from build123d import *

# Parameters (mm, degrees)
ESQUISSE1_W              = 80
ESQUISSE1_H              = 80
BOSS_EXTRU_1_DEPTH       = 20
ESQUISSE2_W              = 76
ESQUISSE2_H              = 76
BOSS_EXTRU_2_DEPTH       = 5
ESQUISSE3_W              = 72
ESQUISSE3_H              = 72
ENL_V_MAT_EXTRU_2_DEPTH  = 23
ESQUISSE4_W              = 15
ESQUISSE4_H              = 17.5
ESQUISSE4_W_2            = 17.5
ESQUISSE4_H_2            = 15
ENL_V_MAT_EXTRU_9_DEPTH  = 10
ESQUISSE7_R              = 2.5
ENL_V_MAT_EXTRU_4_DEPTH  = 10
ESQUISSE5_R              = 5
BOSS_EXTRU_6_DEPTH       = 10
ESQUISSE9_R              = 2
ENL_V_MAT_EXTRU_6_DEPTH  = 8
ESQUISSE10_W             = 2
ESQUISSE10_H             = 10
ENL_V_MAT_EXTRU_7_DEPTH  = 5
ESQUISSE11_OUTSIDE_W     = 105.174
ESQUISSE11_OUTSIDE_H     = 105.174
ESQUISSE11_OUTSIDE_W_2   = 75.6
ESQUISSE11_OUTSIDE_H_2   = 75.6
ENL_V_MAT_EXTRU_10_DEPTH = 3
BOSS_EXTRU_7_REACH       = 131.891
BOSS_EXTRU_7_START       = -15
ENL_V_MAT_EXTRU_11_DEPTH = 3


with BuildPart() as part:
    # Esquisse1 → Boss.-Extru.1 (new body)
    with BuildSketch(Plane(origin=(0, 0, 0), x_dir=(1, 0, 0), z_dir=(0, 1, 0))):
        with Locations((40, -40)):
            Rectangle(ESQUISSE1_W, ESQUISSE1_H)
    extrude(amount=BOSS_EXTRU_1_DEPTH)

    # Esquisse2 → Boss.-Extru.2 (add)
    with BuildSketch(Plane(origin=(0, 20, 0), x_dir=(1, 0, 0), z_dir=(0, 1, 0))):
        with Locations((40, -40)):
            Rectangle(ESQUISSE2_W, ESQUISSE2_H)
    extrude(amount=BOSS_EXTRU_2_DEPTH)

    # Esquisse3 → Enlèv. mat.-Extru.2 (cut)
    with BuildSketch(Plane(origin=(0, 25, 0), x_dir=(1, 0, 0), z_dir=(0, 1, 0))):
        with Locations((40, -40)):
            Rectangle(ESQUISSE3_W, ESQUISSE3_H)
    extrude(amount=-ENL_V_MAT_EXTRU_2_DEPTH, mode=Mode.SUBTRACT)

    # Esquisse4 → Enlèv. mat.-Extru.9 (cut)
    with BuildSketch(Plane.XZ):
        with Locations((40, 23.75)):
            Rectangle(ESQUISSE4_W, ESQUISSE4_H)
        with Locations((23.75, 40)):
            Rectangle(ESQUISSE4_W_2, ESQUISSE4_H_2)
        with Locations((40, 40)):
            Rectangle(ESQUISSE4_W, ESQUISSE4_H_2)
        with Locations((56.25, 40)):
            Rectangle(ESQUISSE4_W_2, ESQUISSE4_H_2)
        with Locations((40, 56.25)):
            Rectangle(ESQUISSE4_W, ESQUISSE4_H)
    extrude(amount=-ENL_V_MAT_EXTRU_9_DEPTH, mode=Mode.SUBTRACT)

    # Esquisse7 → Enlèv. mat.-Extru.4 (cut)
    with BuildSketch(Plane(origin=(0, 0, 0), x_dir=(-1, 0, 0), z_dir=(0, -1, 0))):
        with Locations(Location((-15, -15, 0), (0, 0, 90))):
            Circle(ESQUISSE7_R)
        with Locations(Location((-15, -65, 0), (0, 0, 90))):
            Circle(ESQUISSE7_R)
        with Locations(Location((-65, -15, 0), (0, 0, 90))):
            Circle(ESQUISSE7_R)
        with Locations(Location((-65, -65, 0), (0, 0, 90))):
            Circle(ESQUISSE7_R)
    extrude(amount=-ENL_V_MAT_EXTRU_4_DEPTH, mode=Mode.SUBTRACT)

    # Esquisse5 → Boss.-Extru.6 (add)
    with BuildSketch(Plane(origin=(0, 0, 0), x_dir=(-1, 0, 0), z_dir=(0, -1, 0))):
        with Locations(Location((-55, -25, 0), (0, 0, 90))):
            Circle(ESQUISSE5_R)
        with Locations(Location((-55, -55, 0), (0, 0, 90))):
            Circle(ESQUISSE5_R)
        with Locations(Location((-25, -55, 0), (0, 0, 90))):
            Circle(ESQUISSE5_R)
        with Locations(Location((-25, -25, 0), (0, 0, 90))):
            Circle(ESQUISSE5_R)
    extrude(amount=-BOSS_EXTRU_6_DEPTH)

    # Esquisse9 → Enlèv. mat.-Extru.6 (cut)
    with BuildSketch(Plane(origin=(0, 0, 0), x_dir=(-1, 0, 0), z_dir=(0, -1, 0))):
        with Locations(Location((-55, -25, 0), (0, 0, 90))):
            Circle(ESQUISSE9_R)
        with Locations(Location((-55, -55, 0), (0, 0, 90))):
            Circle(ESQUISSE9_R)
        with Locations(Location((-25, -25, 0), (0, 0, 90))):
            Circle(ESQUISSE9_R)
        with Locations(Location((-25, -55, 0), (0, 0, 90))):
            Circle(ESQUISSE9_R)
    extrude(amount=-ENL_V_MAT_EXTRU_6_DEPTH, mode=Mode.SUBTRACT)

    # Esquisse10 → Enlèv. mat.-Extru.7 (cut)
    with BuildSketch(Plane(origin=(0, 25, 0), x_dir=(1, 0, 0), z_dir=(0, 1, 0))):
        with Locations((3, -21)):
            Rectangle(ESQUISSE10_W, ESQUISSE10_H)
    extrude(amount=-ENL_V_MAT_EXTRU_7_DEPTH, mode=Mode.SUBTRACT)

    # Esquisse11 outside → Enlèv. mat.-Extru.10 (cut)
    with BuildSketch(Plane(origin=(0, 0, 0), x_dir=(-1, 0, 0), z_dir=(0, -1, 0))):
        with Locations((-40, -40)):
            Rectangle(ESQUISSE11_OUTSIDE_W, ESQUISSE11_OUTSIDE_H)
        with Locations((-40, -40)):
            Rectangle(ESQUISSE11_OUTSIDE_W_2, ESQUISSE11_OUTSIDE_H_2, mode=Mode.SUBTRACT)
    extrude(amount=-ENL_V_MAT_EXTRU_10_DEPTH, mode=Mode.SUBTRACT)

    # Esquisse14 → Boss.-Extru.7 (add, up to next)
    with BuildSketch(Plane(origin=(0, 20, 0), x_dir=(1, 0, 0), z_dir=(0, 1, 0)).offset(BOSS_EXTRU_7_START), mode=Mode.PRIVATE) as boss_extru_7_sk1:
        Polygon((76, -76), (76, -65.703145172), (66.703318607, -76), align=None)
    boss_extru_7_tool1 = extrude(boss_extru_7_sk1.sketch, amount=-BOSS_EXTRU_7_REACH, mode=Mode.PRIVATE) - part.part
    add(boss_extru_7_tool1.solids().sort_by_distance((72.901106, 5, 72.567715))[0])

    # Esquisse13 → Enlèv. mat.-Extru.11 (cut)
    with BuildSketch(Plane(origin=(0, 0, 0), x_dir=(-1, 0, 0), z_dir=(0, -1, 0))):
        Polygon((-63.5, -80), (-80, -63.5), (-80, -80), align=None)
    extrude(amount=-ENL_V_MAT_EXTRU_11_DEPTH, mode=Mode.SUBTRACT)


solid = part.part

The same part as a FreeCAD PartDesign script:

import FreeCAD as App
import Part
import Sketcher
from FreeCAD import Vector


def add_polygon(sketch, points):
    """Adds a closed chain of lines whose ends are joined by coincident constraints."""
    first, n = sketch.GeometryCount, len(points)
    for a, b in zip(points, points[1:] + points[:1]):
        sketch.addGeometry(Part.LineSegment(App.Vector(*a, 0), App.Vector(*b, 0)), False)
    for i in range(n):
        sketch.addConstraint(Sketcher.Constraint("Coincident", first + i, 2, first + (i + 1) % n, 1))

doc = App.newDocument("Part")
body = doc.addObject("PartDesign::Body", "Body")

# Sketch on XZ plane
sketch1 = body.newObject("Sketcher::SketchObject", "Sketch")
sketch1.AttachmentSupport = (doc.getObject("XZ_Plane"), [""])
sketch1.MapMode = "FlatFace"
add_polygon(sketch1, [(0, 0), (0, 80), (80, 80), (80, 0)])  # lines 0-3
sketch1.addConstraint(Sketcher.Constraint("Vertical", 0))
sketch1.addConstraint(Sketcher.Constraint("Horizontal", 1))
sketch1.addConstraint(Sketcher.Constraint("Vertical", 2))
sketch1.addConstraint(Sketcher.Constraint("Horizontal", 3))
sketch1.addConstraint(Sketcher.Constraint("Coincident", 3, 2, -1, 1))
sketch1.addConstraint(Sketcher.Constraint("Equal", 3, 0))
sketch1.addConstraint(Sketcher.Constraint("DistanceX", 1, 1, 1, 2, 80.0))
pad1 = body.newObject("PartDesign::Pad", "Pad")
pad1.Profile = sketch1
pad1.Length = 20
pad1.Reversed = True

# Sketch on XZ plane
sketch2 = body.newObject("Sketcher::SketchObject", "Sketch001")
sketch2.AttachmentSupport = (doc.getObject("XZ_Plane"), [""])
sketch2.MapMode = "FlatFace"
sketch2.AttachmentOffset = App.Placement(Vector(0, 0, -20), App.Rotation())
add_polygon(sketch2, [(2, 2), (2, 78), (78, 78), (78, 2)])  # lines 0-3
sketch2.addConstraint(Sketcher.Constraint("Vertical", 0))
sketch2.addConstraint(Sketcher.Constraint("Horizontal", 1))
sketch2.addConstraint(Sketcher.Constraint("Vertical", 2))
sketch2.addConstraint(Sketcher.Constraint("Horizontal", 3))
sketch2.addConstraint(Sketcher.Constraint("Equal", 3, 0))
sketch2.addConstraint(Sketcher.Constraint("DistanceX", 1, 1, 1, 2, 76.0))
sketch2.addConstraint(Sketcher.Constraint("DistanceX", -1, 1, 0, 2, 2.0))
sketch2.addConstraint(Sketcher.Constraint("DistanceY", -1, 1, 0, 2, 78.0))
pad2 = body.newObject("PartDesign::Pad", "Pad001")
pad2.Profile = sketch2
pad2.Length = 5
pad2.Reversed = True

# Sketch on XZ plane
sketch3 = body.newObject("Sketcher::SketchObject", "Sketch002")
sketch3.AttachmentSupport = (doc.getObject("XZ_Plane"), [""])
sketch3.MapMode = "FlatFace"
sketch3.AttachmentOffset = App.Placement(Vector(0, 0, -25), App.Rotation())
add_polygon(sketch3, [(4, 4), (4, 76), (76, 76), (76, 4)])  # lines 0-3
sketch3.addConstraint(Sketcher.Constraint("Vertical", 0))
sketch3.addConstraint(Sketcher.Constraint("Horizontal", 1))
sketch3.addConstraint(Sketcher.Constraint("Vertical", 2))
sketch3.addConstraint(Sketcher.Constraint("Horizontal", 3))
sketch3.addConstraint(Sketcher.Constraint("Equal", 3, 0))
sketch3.addConstraint(Sketcher.Constraint("DistanceX", 1, 1, 1, 2, 72.0))
sketch3.addConstraint(Sketcher.Constraint("DistanceX", -1, 1, 0, 2, 4.0))
sketch3.addConstraint(Sketcher.Constraint("DistanceY", -1, 1, 0, 2, 76.0))
pocket1 = body.newObject("PartDesign::Pocket", "Pocket")
pocket1.Profile = sketch3
pocket1.Length = 23
pocket1.Reversed = True

# Sketch on XZ plane
sketch4 = body.newObject("Sketcher::SketchObject", "Sketch003")
sketch4.AttachmentSupport = (doc.getObject("XZ_Plane"), [""])
sketch4.MapMode = "FlatFace"
add_polygon(sketch4, [(32.5, 32.5), (32.5, 15), (47.5, 15), (47.5, 32.5), (65, 32.5), (65, 47.5), (47.5, 47.5), (47.5, 65), (32.5, 65), (32.5, 47.5), (15, 47.5), (15, 32.5)])  # lines 0-11
sketch4.addConstraint(Sketcher.Constraint("Vertical", 0))
sketch4.addConstraint(Sketcher.Constraint("Horizontal", 1))
sketch4.addConstraint(Sketcher.Constraint("Vertical", 2))
sketch4.addConstraint(Sketcher.Constraint("Horizontal", 3))
sketch4.addConstraint(Sketcher.Constraint("Vertical", 4))
sketch4.addConstraint(Sketcher.Constraint("Horizontal", 5))
sketch4.addConstraint(Sketcher.Constraint("Vertical", 6))
sketch4.addConstraint(Sketcher.Constraint("Horizontal", 7))
sketch4.addConstraint(Sketcher.Constraint("Vertical", 8))
sketch4.addConstraint(Sketcher.Constraint("Horizontal", 9))
sketch4.addConstraint(Sketcher.Constraint("Vertical", 10))
sketch4.addConstraint(Sketcher.Constraint("Horizontal", 11))
sketch4.addConstraint(Sketcher.Constraint("Horizontal", 5, 2, 8, 2))
sketch4.addConstraint(Sketcher.Constraint("Horizontal", 3, 2, 10, 2))
sketch4.addConstraint(Sketcher.Constraint("Vertical", 2, 2, 5, 2))
sketch4.addConstraint(Sketcher.Constraint("Vertical", 0, 2, 7, 2))
sketch4.addConstraint(Sketcher.Constraint("Equal", 5, 9))
sketch4.addConstraint(Sketcher.Constraint("Equal", 11, 0))
sketch4.addConstraint(Sketcher.Constraint("Equal", 7, 4))
sketch4.addConstraint(Sketcher.Constraint("Equal", 2, 6))
sketch4.addConstraint(Sketcher.Constraint("DistanceX", 1, 1, 1, 2, 15.0))
sketch4.addConstraint(Sketcher.Constraint("DistanceX", 3, 1, 3, 2, 17.5))
sketch4.addConstraint(Sketcher.Constraint("DistanceY", -1, 1, 0, 2, 15.0))
sketch4.addConstraint(Sketcher.Constraint("DistanceX", -1, 1, 3, 2, 65.0))
pocket2 = body.newObject("PartDesign::Pocket", "Pocket001")
pocket2.Profile = sketch4
pocket2.Length = 10

# Sketch on XZ plane
sketch5 = body.newObject("Sketcher::SketchObject", "Sketch004")
sketch5.AttachmentSupport = (doc.getObject("XZ_Plane"), [""])
sketch5.MapMode = "FlatFace"
sketch5.addGeometry(Part.Circle(Vector(15, 15, 0), Vector(0, 0, 1), 2.5), False)
sketch5.addGeometry(Part.Circle(Vector(15, 65, 0), Vector(0, 0, 1), 2.5), False)
sketch5.addGeometry(Part.Circle(Vector(65, 15, 0), Vector(0, 0, 1), 2.5), False)
sketch5.addGeometry(Part.Circle(Vector(65, 65, 0), Vector(0, 0, 1), 2.5), False)
sketch5.addConstraint(Sketcher.Constraint("Equal", 0, 1))
sketch5.addConstraint(Sketcher.Constraint("Equal", 1, 2))
sketch5.addConstraint(Sketcher.Constraint("Equal", 2, 3))
sketch5.addConstraint(Sketcher.Constraint("Horizontal", 0, 3, 2, 3))
sketch5.addConstraint(Sketcher.Constraint("Horizontal", 1, 3, 3, 3))
sketch5.addConstraint(Sketcher.Constraint("Vertical", 0, 3, 1, 3))
sketch5.addConstraint(Sketcher.Constraint("Vertical", 2, 3, 3, 3))
sketch5.addConstraint(Sketcher.Constraint("Diameter", 0, 5.0))
sketch5.addConstraint(Sketcher.Constraint("DistanceX", -1, 1, 0, 3, 15.0))
sketch5.addConstraint(Sketcher.Constraint("DistanceY", -1, 1, 0, 3, 15.0))
sketch5.addConstraint(Sketcher.Constraint("DistanceY", -1, 1, 1, 3, 65.0))
sketch5.addConstraint(Sketcher.Constraint("DistanceX", -1, 1, 2, 3, 65.0))
pocket3 = body.newObject("PartDesign::Pocket", "Pocket002")
pocket3.Profile = sketch5
pocket3.Length = 10

# Sketch on XZ plane
sketch6 = body.newObject("Sketcher::SketchObject", "Sketch005")
sketch6.AttachmentSupport = (doc.getObject("XZ_Plane"), [""])
sketch6.MapMode = "FlatFace"
sketch6.addGeometry(Part.Circle(Vector(55, 25, 0), Vector(0, 0, 1), 5), False)
sketch6.addGeometry(Part.Circle(Vector(55, 55, 0), Vector(0, 0, 1), 5), False)
sketch6.addGeometry(Part.Circle(Vector(25, 55, 0), Vector(0, 0, 1), 5), False)
sketch6.addGeometry(Part.Circle(Vector(25, 25, 0), Vector(0, 0, 1), 5), False)
sketch6.addConstraint(Sketcher.Constraint("Equal", 0, 1))
sketch6.addConstraint(Sketcher.Constraint("Equal", 1, 2))
sketch6.addConstraint(Sketcher.Constraint("Equal", 2, 3))
sketch6.addConstraint(Sketcher.Constraint("Horizontal", 1, 3, 2, 3))
sketch6.addConstraint(Sketcher.Constraint("Horizontal", 0, 3, 3, 3))
sketch6.addConstraint(Sketcher.Constraint("Vertical", 0, 3, 1, 3))
sketch6.addConstraint(Sketcher.Constraint("Vertical", 2, 3, 3, 3))
sketch6.addConstraint(Sketcher.Constraint("Diameter", 0, 10.0))
sketch6.addConstraint(Sketcher.Constraint("DistanceX", -1, 1, 0, 3, 55.0))
sketch6.addConstraint(Sketcher.Constraint("DistanceY", -1, 1, 0, 3, 25.0))
sketch6.addConstraint(Sketcher.Constraint("DistanceY", -1, 1, 1, 3, 55.0))
sketch6.addConstraint(Sketcher.Constraint("DistanceX", -1, 1, 2, 3, 25.0))
pad3 = body.newObject("PartDesign::Pad", "Pad002")
pad3.Profile = sketch6
pad3.Length = 10
pad3.Reversed = True

# Sketch on XZ plane
sketch7 = body.newObject("Sketcher::SketchObject", "Sketch006")
sketch7.AttachmentSupport = (doc.getObject("XZ_Plane"), [""])
sketch7.MapMode = "FlatFace"
sketch7.addGeometry(Part.Circle(Vector(55, 25, 0), Vector(0, 0, 1), 2), False)
sketch7.addGeometry(Part.Circle(Vector(55, 55, 0), Vector(0, 0, 1), 2), False)
sketch7.addGeometry(Part.Circle(Vector(25, 25, 0), Vector(0, 0, 1), 2), False)
sketch7.addGeometry(Part.Circle(Vector(25, 55, 0), Vector(0, 0, 1), 2), False)
sketch7.addConstraint(Sketcher.Constraint("Equal", 0, 1))
sketch7.addConstraint(Sketcher.Constraint("Equal", 1, 2))
sketch7.addConstraint(Sketcher.Constraint("Equal", 2, 3))
sketch7.addConstraint(Sketcher.Constraint("Horizontal", 0, 3, 2, 3))
sketch7.addConstraint(Sketcher.Constraint("Horizontal", 1, 3, 3, 3))
sketch7.addConstraint(Sketcher.Constraint("Vertical", 0, 3, 1, 3))
sketch7.addConstraint(Sketcher.Constraint("Vertical", 2, 3, 3, 3))
sketch7.addConstraint(Sketcher.Constraint("Diameter", 0, 4.0))
sketch7.addConstraint(Sketcher.Constraint("DistanceX", -1, 1, 0, 3, 55.0))
sketch7.addConstraint(Sketcher.Constraint("DistanceY", -1, 1, 0, 3, 25.0))
sketch7.addConstraint(Sketcher.Constraint("DistanceY", -1, 1, 1, 3, 55.0))
sketch7.addConstraint(Sketcher.Constraint("DistanceX", -1, 1, 2, 3, 25.0))
pocket4 = body.newObject("PartDesign::Pocket", "Pocket003")
pocket4.Profile = sketch7
pocket4.Length = 8

# Sketch on XZ plane
sketch8 = body.newObject("Sketcher::SketchObject", "Sketch007")
sketch8.AttachmentSupport = (doc.getObject("XZ_Plane"), [""])
sketch8.MapMode = "FlatFace"
sketch8.AttachmentOffset = App.Placement(Vector(0, 0, -25), App.Rotation())
add_polygon(sketch8, [(2, 16), (2, 26), (4, 26), (4, 16)])  # lines 0-3
sketch8.addConstraint(Sketcher.Constraint("Vertical", 0))
sketch8.addConstraint(Sketcher.Constraint("Horizontal", 1))
sketch8.addConstraint(Sketcher.Constraint("Vertical", 2))
sketch8.addConstraint(Sketcher.Constraint("Horizontal", 3))
sketch8.addConstraint(Sketcher.Constraint("DistanceX", 1, 1, 1, 2, 2.0))
sketch8.addConstraint(Sketcher.Constraint("DistanceY", 0, 1, 0, 2, 10.0))
sketch8.addConstraint(Sketcher.Constraint("DistanceX", -1, 1, 0, 2, 2.0))
sketch8.addConstraint(Sketcher.Constraint("DistanceY", -1, 1, 0, 2, 26.0))
pocket5 = body.newObject("PartDesign::Pocket", "Pocket004")
pocket5.Profile = sketch8
pocket5.Length = 5
pocket5.Reversed = True

# Sketch on XZ plane
sketch9 = body.newObject("Sketcher::SketchObject", "Sketch008")
sketch9.AttachmentSupport = (doc.getObject("XZ_Plane"), [""])
sketch9.MapMode = "FlatFace"
add_polygon(sketch9, [(92.587, -12.587), (92.587, 92.587), (-12.587, 92.587), (-12.587, -12.587)])  # lines 0-3
add_polygon(sketch9, [(2.2, 77.8), (77.8, 77.8), (77.8, 2.2), (2.2, 2.2)])  # lines 4-7
sketch9.addConstraint(Sketcher.Constraint("Vertical", 0))
sketch9.addConstraint(Sketcher.Constraint("Horizontal", 1))
sketch9.addConstraint(Sketcher.Constraint("Vertical", 2))
sketch9.addConstraint(Sketcher.Constraint("Horizontal", 3))
sketch9.addConstraint(Sketcher.Constraint("Horizontal", 4))
sketch9.addConstraint(Sketcher.Constraint("Vertical", 5))
sketch9.addConstraint(Sketcher.Constraint("Horizontal", 6))
sketch9.addConstraint(Sketcher.Constraint("Vertical", 7))
sketch9.addConstraint(Sketcher.Constraint("Equal", 3, 0))
sketch9.addConstraint(Sketcher.Constraint("Equal", 6, 5))
sketch9.addConstraint(Sketcher.Constraint("DistanceX", 4, 1, 4, 2, 75.6))
sketch9.addConstraint(Sketcher.Constraint("DistanceX", -1, 1, 4, 2, 77.8))
sketch9.addConstraint(Sketcher.Constraint("DistanceY", -1, 1, 4, 2, 77.8))
sketch9.addConstraint(Sketcher.Constraint("DistanceX", 1, 2, 1, 1, 105.174))
sketch9.addConstraint(Sketcher.Constraint("DistanceX", -1, 1, 0, 2, 92.587))
sketch9.addConstraint(Sketcher.Constraint("DistanceY", -1, 1, 0, 2, 92.587))
pocket6 = body.newObject("PartDesign::Pocket", "Pocket005")
pocket6.Profile = sketch9
pocket6.Length = 3

# Sketch on XZ plane
sketch10 = body.newObject("Sketcher::SketchObject", "Sketch009")
sketch10.AttachmentSupport = (doc.getObject("XZ_Plane"), [""])
sketch10.MapMode = "FlatFace"
sketch10.AttachmentOffset = App.Placement(Vector(0, 0, -5), App.Rotation())
add_polygon(sketch10, [(76, 76), (76, 65.703145), (66.703319, 76)])  # lines 0-2
sketch10.addConstraint(Sketcher.Constraint("Vertical", 0))
sketch10.addConstraint(Sketcher.Constraint("Horizontal", 2))
sketch10.addConstraint(Sketcher.Constraint("DistanceX", -1, 1, 0, 2, 76.0))
sketch10.addConstraint(Sketcher.Constraint("DistanceY", -1, 1, 1, 2, 76.0))
sketch10.addConstraint(Sketcher.Constraint("DistanceX", 2, 1, 2, 2, 9.296681))
sketch10.addConstraint(Sketcher.Constraint("Distance", 1, 13.872761))
pad4 = body.newObject("PartDesign::Pad", "Pad003")
pad4.Profile = sketch10
pad4.Type = "UpToFirst"

# Sketch on XZ plane
sketch11 = body.newObject("Sketcher::SketchObject", "Sketch010")
sketch11.AttachmentSupport = (doc.getObject("XZ_Plane"), [""])
sketch11.MapMode = "FlatFace"
add_polygon(sketch11, [(63.5, 80), (80, 63.5), (80, 80)])  # lines 0-2
sketch11.addConstraint(Sketcher.Constraint("Vertical", 1))
sketch11.addConstraint(Sketcher.Constraint("Horizontal", 2))
sketch11.addConstraint(Sketcher.Constraint("Equal", 2, 1))
sketch11.addConstraint(Sketcher.Constraint("DistanceX", 2, 2, 2, 1, 16.5))
sketch11.addConstraint(Sketcher.Constraint("DistanceX", -1, 1, 0, 2, 80.0))
sketch11.addConstraint(Sketcher.Constraint("DistanceY", -1, 1, 1, 2, 80.0))
pocket7 = body.newObject("PartDesign::Pocket", "Pocket006")
pocket7.Profile = sketch11
pocket7.Length = 3

doc.recompute()
